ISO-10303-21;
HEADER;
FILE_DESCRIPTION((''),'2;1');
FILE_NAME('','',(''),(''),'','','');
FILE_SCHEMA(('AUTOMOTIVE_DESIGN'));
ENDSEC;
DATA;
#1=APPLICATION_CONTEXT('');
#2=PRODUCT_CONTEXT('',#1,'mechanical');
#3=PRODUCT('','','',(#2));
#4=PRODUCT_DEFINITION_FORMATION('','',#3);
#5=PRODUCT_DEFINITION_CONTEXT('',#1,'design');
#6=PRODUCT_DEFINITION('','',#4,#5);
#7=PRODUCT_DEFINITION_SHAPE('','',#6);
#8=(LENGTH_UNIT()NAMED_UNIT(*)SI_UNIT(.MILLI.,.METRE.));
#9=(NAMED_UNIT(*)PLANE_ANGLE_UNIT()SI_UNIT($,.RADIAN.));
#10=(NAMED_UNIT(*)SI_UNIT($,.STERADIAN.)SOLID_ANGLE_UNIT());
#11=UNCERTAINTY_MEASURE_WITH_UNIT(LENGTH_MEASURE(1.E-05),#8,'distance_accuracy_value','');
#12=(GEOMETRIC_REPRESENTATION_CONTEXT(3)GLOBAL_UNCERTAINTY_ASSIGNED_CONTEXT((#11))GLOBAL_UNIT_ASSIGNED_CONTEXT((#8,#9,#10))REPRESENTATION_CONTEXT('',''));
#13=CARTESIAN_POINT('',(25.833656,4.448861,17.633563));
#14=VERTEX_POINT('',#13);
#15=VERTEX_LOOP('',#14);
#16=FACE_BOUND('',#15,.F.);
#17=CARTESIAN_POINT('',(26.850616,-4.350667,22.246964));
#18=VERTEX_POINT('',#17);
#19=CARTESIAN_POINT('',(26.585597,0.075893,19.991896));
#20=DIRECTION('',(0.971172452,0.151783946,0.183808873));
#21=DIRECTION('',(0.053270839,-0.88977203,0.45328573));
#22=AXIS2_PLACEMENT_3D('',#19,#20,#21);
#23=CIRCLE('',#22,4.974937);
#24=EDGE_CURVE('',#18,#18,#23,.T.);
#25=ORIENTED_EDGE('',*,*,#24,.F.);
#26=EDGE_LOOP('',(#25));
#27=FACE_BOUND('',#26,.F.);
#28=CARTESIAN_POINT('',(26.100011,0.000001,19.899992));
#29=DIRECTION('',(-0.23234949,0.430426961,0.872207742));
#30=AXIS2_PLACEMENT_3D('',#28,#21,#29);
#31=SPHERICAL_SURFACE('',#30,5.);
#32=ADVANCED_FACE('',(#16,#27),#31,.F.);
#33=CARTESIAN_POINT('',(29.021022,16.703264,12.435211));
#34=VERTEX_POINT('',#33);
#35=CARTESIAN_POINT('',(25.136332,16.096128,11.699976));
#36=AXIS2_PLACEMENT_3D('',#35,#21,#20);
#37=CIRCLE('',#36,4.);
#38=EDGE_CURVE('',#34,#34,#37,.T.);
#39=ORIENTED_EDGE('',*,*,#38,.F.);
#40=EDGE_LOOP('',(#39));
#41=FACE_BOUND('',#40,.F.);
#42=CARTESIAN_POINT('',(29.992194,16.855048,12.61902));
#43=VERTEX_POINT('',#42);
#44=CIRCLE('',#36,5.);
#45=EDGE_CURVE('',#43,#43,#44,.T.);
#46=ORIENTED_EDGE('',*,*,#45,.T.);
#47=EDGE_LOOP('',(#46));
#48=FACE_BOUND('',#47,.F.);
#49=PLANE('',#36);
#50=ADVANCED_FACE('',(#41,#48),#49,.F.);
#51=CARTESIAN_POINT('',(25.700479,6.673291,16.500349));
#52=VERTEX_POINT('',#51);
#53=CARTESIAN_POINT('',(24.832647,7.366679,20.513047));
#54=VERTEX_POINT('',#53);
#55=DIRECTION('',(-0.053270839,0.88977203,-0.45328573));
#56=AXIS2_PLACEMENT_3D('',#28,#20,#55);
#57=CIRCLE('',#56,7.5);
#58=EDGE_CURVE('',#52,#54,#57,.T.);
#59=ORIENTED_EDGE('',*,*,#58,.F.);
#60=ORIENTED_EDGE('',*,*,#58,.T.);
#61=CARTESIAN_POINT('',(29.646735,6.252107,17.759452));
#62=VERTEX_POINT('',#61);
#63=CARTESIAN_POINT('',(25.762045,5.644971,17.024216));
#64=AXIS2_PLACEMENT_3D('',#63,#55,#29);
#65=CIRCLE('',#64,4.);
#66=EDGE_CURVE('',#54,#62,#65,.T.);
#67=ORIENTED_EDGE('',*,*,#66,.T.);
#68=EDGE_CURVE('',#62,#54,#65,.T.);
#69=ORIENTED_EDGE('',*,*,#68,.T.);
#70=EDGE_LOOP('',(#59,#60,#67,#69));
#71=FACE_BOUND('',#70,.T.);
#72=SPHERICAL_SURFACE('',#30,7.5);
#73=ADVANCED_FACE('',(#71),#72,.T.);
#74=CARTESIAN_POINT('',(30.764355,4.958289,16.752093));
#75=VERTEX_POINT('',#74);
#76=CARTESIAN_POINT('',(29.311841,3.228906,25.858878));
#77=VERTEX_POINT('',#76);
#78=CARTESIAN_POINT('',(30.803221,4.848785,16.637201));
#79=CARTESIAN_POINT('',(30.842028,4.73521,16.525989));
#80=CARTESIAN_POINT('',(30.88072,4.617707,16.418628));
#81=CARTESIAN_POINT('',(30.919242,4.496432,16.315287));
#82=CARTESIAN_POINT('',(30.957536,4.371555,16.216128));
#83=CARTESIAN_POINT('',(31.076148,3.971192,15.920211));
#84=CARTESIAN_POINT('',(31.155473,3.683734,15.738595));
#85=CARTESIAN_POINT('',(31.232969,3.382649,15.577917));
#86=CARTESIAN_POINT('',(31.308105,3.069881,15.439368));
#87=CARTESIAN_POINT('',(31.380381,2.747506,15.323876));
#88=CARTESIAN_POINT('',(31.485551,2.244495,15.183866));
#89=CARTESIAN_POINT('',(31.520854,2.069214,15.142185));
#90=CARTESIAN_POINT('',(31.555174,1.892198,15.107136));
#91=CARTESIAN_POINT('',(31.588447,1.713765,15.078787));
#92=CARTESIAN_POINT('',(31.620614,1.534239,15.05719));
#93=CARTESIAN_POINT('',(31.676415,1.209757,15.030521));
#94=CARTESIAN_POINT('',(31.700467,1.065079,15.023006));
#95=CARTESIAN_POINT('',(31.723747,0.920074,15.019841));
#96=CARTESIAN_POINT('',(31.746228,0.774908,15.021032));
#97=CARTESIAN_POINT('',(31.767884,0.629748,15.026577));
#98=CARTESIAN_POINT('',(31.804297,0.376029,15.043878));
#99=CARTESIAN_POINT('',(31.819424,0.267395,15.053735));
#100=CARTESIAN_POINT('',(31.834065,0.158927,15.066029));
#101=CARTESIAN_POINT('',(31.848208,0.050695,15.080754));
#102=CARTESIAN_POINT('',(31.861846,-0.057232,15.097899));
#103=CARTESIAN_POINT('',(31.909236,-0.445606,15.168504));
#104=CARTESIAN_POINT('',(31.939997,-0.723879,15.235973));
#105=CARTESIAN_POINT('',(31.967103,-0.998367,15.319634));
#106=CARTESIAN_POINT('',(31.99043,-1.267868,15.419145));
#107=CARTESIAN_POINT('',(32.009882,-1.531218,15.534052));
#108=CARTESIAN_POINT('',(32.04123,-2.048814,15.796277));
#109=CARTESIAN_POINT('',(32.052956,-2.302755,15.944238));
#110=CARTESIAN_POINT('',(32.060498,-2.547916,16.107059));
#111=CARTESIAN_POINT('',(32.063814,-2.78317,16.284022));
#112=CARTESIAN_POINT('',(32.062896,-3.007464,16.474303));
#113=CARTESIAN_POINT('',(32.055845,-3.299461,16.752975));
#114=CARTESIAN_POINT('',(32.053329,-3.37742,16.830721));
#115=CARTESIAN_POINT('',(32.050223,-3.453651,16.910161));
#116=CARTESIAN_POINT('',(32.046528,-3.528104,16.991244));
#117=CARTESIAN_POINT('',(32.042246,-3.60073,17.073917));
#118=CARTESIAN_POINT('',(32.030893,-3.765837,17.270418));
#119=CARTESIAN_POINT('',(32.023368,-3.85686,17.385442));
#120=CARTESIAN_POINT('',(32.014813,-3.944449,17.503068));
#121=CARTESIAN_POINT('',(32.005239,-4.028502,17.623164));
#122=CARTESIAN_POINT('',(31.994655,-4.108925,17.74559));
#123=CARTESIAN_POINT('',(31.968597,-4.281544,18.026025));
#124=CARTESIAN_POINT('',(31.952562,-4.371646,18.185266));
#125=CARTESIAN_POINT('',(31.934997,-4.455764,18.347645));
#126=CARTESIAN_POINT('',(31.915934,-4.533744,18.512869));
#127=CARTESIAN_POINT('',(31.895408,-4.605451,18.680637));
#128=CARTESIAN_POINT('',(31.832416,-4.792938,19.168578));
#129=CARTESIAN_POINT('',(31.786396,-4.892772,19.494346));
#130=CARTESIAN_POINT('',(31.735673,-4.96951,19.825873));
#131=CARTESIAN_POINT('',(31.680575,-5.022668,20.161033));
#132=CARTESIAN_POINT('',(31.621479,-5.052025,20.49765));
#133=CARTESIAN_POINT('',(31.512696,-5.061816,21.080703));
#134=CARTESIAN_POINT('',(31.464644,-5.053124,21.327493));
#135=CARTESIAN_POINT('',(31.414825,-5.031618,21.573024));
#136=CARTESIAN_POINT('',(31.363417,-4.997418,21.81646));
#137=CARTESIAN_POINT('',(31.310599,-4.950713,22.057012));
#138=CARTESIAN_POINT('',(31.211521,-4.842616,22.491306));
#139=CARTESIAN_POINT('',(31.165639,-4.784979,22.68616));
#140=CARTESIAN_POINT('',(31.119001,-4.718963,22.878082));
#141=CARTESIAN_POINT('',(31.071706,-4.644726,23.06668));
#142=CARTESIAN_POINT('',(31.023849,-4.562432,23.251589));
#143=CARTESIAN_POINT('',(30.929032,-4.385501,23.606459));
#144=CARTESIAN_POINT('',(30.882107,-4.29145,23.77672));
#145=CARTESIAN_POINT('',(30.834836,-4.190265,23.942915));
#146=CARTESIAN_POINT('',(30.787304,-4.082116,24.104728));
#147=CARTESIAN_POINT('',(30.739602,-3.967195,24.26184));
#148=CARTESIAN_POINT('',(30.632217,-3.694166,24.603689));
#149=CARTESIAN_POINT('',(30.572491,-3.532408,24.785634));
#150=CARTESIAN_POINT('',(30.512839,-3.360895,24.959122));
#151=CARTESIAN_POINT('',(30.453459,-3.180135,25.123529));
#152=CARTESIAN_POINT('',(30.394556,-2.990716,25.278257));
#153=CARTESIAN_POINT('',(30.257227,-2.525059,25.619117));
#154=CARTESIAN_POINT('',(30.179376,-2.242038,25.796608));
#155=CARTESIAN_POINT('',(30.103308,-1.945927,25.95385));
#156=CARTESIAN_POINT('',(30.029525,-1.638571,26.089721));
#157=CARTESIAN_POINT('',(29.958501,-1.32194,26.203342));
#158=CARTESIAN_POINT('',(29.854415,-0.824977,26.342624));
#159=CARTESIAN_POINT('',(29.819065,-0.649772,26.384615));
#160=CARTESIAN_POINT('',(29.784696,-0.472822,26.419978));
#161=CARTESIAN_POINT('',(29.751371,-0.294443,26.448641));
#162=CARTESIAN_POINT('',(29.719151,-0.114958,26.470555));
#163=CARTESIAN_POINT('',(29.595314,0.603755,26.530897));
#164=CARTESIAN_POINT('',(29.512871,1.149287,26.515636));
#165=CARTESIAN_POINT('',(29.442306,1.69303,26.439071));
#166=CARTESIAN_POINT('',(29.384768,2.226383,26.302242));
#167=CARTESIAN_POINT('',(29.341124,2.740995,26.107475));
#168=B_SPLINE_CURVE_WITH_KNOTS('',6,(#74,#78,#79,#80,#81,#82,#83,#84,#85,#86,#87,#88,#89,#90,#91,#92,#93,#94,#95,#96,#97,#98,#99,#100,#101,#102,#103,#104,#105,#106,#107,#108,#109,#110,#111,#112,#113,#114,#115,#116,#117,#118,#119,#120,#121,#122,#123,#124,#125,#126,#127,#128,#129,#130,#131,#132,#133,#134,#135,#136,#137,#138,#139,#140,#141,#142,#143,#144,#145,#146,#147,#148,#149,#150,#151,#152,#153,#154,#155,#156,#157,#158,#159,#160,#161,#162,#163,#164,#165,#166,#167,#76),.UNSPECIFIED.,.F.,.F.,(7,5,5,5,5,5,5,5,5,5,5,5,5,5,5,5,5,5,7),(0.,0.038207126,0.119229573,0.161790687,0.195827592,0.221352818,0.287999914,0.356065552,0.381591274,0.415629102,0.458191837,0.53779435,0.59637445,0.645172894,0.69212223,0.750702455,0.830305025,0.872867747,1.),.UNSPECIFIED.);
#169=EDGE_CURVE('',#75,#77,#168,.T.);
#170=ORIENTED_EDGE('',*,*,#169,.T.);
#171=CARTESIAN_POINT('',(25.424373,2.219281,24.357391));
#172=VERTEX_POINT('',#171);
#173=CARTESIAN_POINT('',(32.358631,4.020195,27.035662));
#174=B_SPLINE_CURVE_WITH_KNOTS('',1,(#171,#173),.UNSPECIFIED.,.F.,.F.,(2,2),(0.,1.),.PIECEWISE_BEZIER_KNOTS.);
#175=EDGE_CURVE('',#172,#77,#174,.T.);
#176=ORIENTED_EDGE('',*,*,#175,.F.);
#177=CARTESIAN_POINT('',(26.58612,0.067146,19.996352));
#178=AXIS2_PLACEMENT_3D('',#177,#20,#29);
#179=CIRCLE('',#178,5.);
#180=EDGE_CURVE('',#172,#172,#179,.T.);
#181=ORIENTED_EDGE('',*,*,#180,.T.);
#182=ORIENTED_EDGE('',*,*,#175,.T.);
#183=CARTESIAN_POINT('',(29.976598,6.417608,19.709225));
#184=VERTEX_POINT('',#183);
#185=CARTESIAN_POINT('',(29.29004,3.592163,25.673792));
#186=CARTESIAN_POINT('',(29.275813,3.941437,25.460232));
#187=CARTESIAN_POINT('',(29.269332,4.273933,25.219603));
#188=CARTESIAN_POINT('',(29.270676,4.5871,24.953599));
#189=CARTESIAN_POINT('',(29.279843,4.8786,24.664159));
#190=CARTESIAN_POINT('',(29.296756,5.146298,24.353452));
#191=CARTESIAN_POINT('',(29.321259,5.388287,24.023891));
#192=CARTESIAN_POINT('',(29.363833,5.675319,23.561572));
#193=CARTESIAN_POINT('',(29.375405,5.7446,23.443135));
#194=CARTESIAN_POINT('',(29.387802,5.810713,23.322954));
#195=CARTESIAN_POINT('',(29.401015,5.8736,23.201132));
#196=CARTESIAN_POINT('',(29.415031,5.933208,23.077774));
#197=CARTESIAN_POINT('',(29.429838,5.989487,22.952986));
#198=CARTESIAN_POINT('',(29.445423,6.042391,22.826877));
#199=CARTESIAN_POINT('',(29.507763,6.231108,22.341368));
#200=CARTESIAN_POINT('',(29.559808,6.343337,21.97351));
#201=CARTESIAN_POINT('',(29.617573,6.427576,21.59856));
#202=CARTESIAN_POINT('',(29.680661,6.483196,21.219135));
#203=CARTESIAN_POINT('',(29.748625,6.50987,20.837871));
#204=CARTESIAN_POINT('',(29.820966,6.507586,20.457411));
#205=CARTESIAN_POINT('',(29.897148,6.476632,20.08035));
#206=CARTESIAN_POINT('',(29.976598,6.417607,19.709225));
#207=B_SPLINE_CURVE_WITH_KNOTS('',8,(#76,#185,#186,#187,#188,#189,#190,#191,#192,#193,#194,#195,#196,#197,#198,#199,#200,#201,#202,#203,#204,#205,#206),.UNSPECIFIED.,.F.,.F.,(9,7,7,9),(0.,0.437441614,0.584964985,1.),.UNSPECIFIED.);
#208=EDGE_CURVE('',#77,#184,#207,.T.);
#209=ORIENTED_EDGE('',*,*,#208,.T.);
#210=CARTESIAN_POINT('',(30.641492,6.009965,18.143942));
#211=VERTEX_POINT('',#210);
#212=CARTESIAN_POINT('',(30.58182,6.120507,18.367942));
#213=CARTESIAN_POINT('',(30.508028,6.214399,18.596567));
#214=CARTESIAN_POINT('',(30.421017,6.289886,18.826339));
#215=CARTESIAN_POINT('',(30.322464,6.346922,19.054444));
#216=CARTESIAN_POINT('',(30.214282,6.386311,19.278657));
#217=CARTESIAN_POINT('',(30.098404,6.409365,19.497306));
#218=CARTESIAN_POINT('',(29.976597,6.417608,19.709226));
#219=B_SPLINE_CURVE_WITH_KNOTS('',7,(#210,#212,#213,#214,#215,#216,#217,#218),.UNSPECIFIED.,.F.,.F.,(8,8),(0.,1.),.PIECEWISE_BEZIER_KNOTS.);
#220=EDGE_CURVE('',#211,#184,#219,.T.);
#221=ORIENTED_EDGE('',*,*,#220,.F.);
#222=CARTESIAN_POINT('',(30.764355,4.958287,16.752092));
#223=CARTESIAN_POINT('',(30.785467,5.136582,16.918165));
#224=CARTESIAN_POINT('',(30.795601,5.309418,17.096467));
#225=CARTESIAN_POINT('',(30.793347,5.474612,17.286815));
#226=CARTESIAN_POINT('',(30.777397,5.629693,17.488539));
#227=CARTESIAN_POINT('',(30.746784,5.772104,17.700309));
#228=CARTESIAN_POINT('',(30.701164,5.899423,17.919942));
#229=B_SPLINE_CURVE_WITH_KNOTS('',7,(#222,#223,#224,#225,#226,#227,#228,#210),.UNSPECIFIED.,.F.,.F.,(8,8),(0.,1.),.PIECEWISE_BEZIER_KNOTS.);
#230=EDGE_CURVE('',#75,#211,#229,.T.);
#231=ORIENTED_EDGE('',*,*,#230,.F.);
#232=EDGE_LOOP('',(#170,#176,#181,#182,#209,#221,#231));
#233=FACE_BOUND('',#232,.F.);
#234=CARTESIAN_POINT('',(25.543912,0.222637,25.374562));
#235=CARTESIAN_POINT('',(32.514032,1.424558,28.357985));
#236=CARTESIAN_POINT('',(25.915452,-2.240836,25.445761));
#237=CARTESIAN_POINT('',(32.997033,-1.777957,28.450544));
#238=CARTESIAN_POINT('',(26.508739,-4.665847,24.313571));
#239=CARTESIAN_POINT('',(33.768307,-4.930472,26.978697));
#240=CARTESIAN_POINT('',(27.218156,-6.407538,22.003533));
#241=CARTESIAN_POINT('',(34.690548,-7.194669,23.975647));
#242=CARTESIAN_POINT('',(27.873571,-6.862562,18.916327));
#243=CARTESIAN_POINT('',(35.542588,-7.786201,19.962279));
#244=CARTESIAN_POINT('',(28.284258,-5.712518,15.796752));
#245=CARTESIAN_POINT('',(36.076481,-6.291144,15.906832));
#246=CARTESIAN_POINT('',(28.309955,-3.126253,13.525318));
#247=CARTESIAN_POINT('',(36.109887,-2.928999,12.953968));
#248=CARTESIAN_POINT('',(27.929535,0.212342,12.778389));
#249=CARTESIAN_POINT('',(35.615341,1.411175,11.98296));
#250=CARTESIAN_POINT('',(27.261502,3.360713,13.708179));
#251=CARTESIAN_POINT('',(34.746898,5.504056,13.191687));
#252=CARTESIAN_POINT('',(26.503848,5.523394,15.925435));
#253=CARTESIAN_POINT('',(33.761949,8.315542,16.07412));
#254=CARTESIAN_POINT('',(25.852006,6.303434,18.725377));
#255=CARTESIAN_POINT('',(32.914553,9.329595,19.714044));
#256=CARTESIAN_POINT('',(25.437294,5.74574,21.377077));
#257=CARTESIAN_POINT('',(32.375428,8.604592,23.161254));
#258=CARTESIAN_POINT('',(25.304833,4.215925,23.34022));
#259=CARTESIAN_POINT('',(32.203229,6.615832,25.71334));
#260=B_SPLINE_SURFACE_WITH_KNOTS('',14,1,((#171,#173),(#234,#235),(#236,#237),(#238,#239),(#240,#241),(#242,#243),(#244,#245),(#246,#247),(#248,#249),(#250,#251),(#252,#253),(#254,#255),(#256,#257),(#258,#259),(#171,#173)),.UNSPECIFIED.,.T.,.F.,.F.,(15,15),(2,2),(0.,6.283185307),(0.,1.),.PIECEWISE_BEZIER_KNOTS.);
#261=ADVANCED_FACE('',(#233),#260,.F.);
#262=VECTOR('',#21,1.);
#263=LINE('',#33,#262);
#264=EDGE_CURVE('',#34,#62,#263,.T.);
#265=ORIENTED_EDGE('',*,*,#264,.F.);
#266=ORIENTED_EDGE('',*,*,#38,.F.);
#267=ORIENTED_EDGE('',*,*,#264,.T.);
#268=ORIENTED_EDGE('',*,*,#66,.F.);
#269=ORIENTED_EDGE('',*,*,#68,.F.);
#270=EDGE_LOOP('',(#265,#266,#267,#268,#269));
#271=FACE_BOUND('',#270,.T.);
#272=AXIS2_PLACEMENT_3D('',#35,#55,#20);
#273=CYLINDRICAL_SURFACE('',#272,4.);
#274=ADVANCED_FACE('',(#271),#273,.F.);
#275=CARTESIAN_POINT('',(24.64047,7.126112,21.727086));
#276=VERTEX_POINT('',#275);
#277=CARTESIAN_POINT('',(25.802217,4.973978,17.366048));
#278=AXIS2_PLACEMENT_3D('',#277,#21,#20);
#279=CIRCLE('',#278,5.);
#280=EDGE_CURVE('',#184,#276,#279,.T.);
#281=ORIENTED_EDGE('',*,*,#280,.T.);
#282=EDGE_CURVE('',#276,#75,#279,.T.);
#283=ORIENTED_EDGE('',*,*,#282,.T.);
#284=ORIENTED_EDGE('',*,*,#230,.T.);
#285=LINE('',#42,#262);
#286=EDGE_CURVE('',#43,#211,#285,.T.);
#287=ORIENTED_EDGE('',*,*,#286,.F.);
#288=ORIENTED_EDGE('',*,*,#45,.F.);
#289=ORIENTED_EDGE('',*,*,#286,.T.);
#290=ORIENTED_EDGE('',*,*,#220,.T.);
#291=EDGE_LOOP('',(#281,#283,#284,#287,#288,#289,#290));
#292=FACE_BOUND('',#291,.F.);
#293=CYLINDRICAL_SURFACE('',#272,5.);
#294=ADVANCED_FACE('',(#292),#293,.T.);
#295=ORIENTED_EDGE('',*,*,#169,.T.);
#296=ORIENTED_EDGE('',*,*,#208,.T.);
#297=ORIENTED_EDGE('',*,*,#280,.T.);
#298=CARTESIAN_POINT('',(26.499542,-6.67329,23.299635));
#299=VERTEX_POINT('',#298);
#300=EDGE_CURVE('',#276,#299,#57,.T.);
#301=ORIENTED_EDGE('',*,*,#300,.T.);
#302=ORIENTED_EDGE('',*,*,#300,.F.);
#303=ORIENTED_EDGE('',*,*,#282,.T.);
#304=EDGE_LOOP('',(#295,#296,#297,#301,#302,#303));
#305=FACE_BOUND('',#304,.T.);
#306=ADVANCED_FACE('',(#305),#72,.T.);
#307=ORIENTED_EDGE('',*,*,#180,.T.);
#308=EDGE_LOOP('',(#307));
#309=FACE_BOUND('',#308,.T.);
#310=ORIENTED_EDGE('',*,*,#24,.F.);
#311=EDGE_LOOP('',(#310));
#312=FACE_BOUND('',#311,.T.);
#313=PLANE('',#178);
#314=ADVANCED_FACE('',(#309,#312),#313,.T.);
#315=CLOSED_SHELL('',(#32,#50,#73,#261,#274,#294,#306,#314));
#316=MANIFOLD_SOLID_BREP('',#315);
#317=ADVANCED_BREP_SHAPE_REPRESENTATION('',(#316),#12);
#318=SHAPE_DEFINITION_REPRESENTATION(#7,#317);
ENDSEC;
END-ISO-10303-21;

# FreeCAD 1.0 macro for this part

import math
import FreeCAD as App
import Part
import Sketcher
from FreeCAD import Vector

doc = App.newDocument("Part")
body = doc.addObject("PartDesign::Body", "Body")

# Sketch on XY plane
sketch1 = body.newObject("Sketcher::SketchObject", "Sketch")
sketch1.AttachmentSupport = (doc.getObject("XY_Plane"), [""])
sketch1.MapMode = "FlatFace"
sketch1.addGeometry([
    Part.Circle(Vector(0, 0, 0), Vector(0, 0, 1), 5),
    Part.Circle(Vector(0, 0, 0), Vector(0, 0, 1), 4),
], False)
sketch1.addConstraint([
    Sketcher.Constraint("Coincident", 0, 3, -1, 1),
    Sketcher.Constraint("Coincident", 1, 3, -1, 1),
    Sketcher.Constraint("Diameter", 0, 10.0),
    Sketcher.Constraint("Diameter", 1, 8.0),
])
pad1 = body.newObject("PartDesign::Pad", "Pad")
pad1.Profile = sketch1
pad1.Length = 12.5

# Sketch on YZ plane
sketch2 = body.newObject("Sketcher::SketchObject", "Sketch001")
sketch2.AttachmentSupport = (doc.getObject("YZ_Plane"), [""])
sketch2.MapMode = "FlatFace"
sketch2.addGeometry([
    Part.ArcOfCircle(Part.Circle(Vector(0, 18.1, 0), Vector(0, 0, 1), 7.5), math.radians(-90), math.radians(90)),
    Part.LineSegment(Vector(0, 25.6, 0), Vector(0, 23.1, 0)),
    Part.ArcOfCircle(Part.Circle(Vector(0, 18.1, 0), Vector(0, 0, 1), 5), math.radians(-90), math.radians(90)),
    Part.LineSegment(Vector(0, 13.1, 0), Vector(0, 10.6, 0)),
], False)
sketch2.addConstraint([
    Sketcher.Constraint("Coincident", 0, 2, 1, 1),
    Sketcher.Constraint("Coincident", 1, 2, 2, 2),
    Sketcher.Constraint("Coincident", 2, 1, 3, 1),
    Sketcher.Constraint("Coincident", 3, 2, 0, 1),
    Sketcher.Constraint("Vertical", 1),
    Sketcher.Constraint("Vertical", 3),
    Sketcher.Constraint("Coincident", 2, 3, 0, 3),
    Sketcher.Constraint("PointOnObject", 0, 3, -2),
    Sketcher.Constraint("PointOnObject", 0, 2, -2),
    Sketcher.Constraint("PointOnObject", 2, 1, -2),
    Sketcher.Constraint("Radius", 2, 5.0),
    Sketcher.Constraint("Radius", 0, 7.5),
    Sketcher.Constraint("DistanceY", -1, 1, 0, 3, 18.09017),
])
revolution = body.newObject("PartDesign::Revolution", "Revolution")
revolution.Profile = sketch2
revolution.ReferenceAxis = (sketch2, ["V_Axis"])
revolution.Angle = 360

# Sketch on YZ plane
sketch3 = body.newObject("Sketcher::SketchObject", "Sketch002")
sketch3.AttachmentSupport = (doc.getObject("YZ_Plane"), [""])
sketch3.MapMode = "FlatFace"
sketch3.AttachmentOffset = App.Placement(Vector(0, 0, 0.5), App.Rotation())
sketch3.addGeometry(Part.Circle(Vector(0, 18, 0), Vector(0, 0, 1), 5), False)
sketch3.addConstraint([
    Sketcher.Constraint("PointOnObject", 0, 3, -2),
    Sketcher.Constraint("Diameter", 0, 10.0),
    Sketcher.Constraint("DistanceY", -1, 1, 0, 3, 18.1),
])

# Sketch on YZ plane
sketch4 = body.newObject("Sketcher::SketchObject", "Sketch003")
sketch4.AttachmentSupport = (doc.getObject("YZ_Plane"), [""])
sketch4.MapMode = "FlatFace"
sketch4.AttachmentOffset = App.Placement(Vector(0, 0, 8), App.Rotation())
sketch4.addGeometry(Part.Circle(Vector(0, 18, 0), Vector(0, 0, 1), 6), False)
sketch4.addConstraint([
    Sketcher.Constraint("PointOnObject", 0, 3, -2),
    Sketcher.Constraint("Diameter", 0, 13.0),
    Sketcher.Constraint("DistanceY", -1, 1, 0, 3, 18.081013),
])

subtractiveloft = body.newObject("PartDesign::SubtractiveLoft", "SubtractiveLoft")
subtractiveloft.Profile = sketch3
subtractiveloft.Sections = [sketch4]
body2 = doc.addObject("PartDesign::Body", "Body001")
doc.recompute()

body.Placement = App.Placement(Vector(0, 0, 0), App.Rotation(Vector(1, 0, 0), 62.539133))
boolean = body2.newObject("PartDesign::Boolean", "Boolean")
boolean.Type = "Fuse"
boolean.addObjects([body])
body3 = doc.addObject("PartDesign::Body", "Body002")
doc.recompute()

body2.Placement = App.Placement(Vector(0, 0, 0), App.Rotation(Vector(0, 1, 0), 349.408305))
boolean2 = body3.newObject("PartDesign::Boolean", "Boolean001")
boolean2.Type = "Fuse"
boolean2.addObjects([body2])
body4 = doc.addObject("PartDesign::Body", "Body003")
doc.recompute()

body3.Placement = App.Placement(Vector(25.136332, 16.096128, 11.699976), App.Rotation(Vector(0, 0, 1), 8.882862))
boolean3 = body4.newObject("PartDesign::Boolean", "Boolean002")
boolean3.Type = "Fuse"
boolean3.addObjects([body3])

doc.recompute()
